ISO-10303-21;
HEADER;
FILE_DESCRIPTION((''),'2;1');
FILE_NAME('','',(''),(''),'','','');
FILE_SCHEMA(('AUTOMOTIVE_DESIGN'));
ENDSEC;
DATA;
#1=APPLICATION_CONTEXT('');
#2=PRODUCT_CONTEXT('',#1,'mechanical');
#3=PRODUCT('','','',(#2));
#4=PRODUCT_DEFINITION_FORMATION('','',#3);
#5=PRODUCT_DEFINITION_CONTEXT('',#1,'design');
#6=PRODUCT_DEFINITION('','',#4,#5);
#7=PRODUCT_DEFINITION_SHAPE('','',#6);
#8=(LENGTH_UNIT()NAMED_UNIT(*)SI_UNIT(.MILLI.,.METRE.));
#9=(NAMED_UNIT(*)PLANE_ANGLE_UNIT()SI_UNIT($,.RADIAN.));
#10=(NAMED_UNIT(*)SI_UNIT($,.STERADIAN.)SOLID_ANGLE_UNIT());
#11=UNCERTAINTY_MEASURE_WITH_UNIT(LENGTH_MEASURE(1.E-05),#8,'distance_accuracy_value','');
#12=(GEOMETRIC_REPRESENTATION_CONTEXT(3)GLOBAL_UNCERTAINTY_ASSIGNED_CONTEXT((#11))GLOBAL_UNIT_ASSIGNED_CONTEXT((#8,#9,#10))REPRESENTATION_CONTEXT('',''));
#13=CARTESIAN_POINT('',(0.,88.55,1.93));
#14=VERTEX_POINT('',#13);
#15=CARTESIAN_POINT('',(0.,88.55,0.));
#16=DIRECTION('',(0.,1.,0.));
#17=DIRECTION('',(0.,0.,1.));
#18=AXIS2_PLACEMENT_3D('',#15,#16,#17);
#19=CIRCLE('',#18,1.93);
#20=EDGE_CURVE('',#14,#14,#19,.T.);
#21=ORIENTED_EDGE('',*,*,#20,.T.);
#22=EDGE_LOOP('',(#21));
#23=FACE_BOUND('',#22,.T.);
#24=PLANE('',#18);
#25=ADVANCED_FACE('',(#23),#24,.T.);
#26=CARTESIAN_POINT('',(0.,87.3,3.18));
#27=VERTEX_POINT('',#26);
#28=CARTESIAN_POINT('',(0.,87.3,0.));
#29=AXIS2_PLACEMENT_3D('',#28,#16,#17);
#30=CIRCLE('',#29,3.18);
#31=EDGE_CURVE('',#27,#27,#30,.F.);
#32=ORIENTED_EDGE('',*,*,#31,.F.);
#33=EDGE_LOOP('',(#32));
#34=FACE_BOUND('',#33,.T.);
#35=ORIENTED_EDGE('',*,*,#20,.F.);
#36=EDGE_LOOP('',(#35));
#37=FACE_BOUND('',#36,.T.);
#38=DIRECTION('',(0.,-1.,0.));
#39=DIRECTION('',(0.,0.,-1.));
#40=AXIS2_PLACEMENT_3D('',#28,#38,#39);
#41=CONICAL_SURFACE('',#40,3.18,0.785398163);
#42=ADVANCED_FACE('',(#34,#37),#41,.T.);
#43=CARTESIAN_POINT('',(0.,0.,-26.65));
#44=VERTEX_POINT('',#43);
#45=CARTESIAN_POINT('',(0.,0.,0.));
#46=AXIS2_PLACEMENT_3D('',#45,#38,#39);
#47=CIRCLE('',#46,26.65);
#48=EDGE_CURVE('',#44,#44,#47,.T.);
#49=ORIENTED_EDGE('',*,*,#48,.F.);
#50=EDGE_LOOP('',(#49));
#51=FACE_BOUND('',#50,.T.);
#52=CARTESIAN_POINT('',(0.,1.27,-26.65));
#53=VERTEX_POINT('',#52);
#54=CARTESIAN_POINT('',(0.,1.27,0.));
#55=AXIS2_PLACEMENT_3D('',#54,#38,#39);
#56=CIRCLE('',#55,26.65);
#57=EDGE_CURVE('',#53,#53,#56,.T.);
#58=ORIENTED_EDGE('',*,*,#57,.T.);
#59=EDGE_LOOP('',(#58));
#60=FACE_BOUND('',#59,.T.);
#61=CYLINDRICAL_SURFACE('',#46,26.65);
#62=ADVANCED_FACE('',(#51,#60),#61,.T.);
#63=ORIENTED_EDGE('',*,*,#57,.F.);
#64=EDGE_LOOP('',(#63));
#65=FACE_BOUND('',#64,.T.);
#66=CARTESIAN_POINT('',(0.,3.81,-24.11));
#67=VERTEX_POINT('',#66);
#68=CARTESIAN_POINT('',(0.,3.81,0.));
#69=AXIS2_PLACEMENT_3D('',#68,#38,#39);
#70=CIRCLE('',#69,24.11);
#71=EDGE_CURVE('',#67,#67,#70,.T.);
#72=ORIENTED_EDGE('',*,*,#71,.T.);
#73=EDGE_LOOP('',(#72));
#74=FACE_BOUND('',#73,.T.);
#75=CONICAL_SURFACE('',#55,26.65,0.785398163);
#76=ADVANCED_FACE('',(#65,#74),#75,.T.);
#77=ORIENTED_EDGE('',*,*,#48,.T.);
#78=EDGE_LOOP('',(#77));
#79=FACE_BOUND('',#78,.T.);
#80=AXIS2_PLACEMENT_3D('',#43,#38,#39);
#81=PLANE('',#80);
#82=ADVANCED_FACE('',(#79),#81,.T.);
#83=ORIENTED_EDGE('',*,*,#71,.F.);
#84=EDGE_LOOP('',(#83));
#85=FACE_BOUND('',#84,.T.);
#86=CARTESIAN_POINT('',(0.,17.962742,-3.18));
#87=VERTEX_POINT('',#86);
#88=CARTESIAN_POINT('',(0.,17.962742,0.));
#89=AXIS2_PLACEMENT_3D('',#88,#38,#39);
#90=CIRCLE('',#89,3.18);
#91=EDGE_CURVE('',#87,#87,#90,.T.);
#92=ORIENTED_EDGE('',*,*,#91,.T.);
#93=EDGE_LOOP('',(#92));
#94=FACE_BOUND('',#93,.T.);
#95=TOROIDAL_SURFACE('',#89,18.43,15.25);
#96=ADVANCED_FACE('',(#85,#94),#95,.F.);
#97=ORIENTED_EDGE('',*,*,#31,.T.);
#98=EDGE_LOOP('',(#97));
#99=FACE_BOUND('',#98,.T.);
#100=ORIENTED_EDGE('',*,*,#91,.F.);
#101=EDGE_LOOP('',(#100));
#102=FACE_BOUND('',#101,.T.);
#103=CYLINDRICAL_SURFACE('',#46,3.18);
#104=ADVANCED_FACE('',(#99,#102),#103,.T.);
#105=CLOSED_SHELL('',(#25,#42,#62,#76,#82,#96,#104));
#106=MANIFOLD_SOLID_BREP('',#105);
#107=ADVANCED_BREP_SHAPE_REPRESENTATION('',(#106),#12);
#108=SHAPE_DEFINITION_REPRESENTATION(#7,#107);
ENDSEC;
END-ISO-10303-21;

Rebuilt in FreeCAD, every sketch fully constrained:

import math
import FreeCAD as App
import Part
import Sketcher

V = App.Vector
Q = App.Units.Quantity


def edges_at(feature, points):
    """Names of the edges that pass closest to the given points."""
    edges = feature.Shape.Edges
    near = lambda p: min(range(len(edges)), key=lambda i: edges[i].distToShape(Part.Vertex(*p))[0])
    return sorted({f"Edge{near(p) + 1}" for p in points})

doc = App.newDocument("Part")
body = doc.addObject("PartDesign::Body", "Body")

sketch1 = body.newObject("Sketcher::SketchObject", "Sketch")
sketch1.AttachmentSupport = (doc.getObject("YZ_Plane"), [""])
sketch1.MapMode = "FlatFace"
sketch1.addGeometry([
    Part.LineSegment(V(88.55, 0, 0), V(0, 0, 0)),
    Part.LineSegment(V(0, 0, 0), V(0, -26.65, 0)),
    Part.LineSegment(V(0, -26.65, 0), V(1.27, -26.65, 0)),
    Part.LineSegment(V(1.27, -26.65, 0), V(3.81, -24.11, 0)),
    Part.ArcOfCircle(Part.Circle(V(17.962742, -18.43, 0), V(0, 0, 1), 15.25), math.radians(90), math.radians(201.867351)),
    Part.LineSegment(V(17.962742, -3.18, 0), V(88.55, -3.18, 0)),
    Part.LineSegment(V(88.55, -3.18, 0), V(88.55, 0, 0)),
], False)
sketch1.addConstraint([
    Sketcher.Constraint("Coincident", 0, 2, 1, 1),
    Sketcher.Constraint("Coincident", 1, 2, 2, 1),
    Sketcher.Constraint("Coincident", 2, 2, 3, 1),
    Sketcher.Constraint("Coincident", 3, 2, 4, 2),
    Sketcher.Constraint("Tangent", 4, 1, 5, 1),
    Sketcher.Constraint("Coincident", 5, 2, 6, 1),
    Sketcher.Constraint("Coincident", 6, 2, 0, 1),
    Sketcher.Constraint("Horizontal", 0),
    Sketcher.Constraint("Vertical", 1),
    Sketcher.Constraint("Horizontal", 2),
    Sketcher.Constraint("Horizontal", 5),
    Sketcher.Constraint("Vertical", 6),
    Sketcher.Constraint("Coincident", 0, 2, -1, 1),
    Sketcher.Constraint("Angle", 3, Q("45 deg")),
    Sketcher.Constraint("Radius", 4, Q("15.25 mm")),
    Sketcher.Constraint("DistanceX", 0, 2, 0, 1, Q("88.55 mm")),
    Sketcher.Constraint("DistanceX", 2, 1, 2, 2, Q("1.27 mm")),
    Sketcher.Constraint("DistanceY", 1, 2, 1, 1, Q("26.65 mm")),
    Sketcher.Constraint("DistanceY", 6, 1, 6, 2, Q("3.18 mm")),
    Sketcher.Constraint("DistanceX", -1, 1, 3, 2, Q("3.81 mm")),
])
revolution = body.newObject("PartDesign::Revolution", "Revolution")
revolution.Profile = sketch1
revolution.ReferenceAxis = (sketch1, ["H_Axis"])
revolution.Angle = 360
doc.recompute()

chamfer = body.newObject("PartDesign::Chamfer", "Chamfer")
chamfer.Base = (revolution, edges_at(revolution, [(0, 88.55, 3.18)]))
chamfer.Size = 1.25

doc.recompute()
